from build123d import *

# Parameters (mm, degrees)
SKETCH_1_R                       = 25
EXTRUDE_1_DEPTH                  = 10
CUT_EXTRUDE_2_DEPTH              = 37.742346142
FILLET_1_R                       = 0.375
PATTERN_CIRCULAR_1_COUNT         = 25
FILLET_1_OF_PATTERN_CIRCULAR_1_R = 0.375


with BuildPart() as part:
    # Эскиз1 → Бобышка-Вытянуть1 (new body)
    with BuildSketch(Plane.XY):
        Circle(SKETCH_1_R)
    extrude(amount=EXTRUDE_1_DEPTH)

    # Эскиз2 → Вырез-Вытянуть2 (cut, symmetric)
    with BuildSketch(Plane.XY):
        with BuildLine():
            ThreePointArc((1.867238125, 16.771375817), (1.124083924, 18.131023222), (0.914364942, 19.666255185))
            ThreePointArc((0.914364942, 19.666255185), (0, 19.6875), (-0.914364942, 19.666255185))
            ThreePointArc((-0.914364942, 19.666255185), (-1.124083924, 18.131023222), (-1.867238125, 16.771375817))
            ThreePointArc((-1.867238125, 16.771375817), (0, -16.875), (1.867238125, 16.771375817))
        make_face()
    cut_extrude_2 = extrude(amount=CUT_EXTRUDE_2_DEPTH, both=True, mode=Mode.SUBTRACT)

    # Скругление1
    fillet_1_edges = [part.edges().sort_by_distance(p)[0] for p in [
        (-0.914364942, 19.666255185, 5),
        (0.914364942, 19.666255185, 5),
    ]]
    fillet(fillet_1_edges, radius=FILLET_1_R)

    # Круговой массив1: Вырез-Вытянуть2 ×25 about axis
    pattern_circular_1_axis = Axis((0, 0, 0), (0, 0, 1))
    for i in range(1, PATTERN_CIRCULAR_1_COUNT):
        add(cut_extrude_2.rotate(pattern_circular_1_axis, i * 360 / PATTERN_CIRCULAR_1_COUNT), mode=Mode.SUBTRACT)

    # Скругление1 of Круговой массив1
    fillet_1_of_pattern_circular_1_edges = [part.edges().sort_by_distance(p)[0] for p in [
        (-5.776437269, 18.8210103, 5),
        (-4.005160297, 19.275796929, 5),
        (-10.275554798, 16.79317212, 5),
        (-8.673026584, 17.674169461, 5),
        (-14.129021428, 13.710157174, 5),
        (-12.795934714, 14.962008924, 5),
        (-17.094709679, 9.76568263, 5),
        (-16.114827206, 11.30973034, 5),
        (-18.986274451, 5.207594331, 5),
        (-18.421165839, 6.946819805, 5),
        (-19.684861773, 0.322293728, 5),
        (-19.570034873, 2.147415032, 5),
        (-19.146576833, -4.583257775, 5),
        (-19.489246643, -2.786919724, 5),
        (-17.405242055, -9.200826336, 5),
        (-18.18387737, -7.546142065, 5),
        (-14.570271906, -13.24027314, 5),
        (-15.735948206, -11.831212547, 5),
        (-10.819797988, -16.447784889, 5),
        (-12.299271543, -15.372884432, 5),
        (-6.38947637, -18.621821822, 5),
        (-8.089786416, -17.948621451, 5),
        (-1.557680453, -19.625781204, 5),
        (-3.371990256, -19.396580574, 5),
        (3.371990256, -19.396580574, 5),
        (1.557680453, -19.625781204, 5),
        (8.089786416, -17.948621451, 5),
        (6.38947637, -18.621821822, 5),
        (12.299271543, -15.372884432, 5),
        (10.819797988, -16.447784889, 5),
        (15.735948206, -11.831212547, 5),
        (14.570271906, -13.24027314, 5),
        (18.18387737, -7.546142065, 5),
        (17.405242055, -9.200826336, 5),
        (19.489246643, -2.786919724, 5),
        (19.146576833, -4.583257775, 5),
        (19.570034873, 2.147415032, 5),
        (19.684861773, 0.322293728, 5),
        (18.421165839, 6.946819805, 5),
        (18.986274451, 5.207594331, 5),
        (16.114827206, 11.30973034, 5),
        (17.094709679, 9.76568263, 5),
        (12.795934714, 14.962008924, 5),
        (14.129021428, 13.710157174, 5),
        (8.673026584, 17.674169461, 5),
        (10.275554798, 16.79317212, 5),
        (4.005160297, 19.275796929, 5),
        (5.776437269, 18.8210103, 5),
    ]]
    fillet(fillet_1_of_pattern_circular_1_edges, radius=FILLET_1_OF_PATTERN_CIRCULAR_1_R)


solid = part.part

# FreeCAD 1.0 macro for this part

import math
import FreeCAD as App
import Part
import Sketcher

V = App.Vector


def edges_at(feature, points):
    """Names of the edges that pass closest to the given points."""
    edges = feature.Shape.Edges
    near = lambda p: min(range(len(edges)), key=lambda i: edges[i].distToShape(Part.Vertex(*p))[0])
    return sorted({f"Edge{near(p) + 1}" for p in points})

doc = App.newDocument("Part")
body = doc.addObject("PartDesign::Body", "Body")

sketch1 = body.newObject("Sketcher::SketchObject", "Sketch")
sketch1.AttachmentSupport = (doc.getObject("XY_Plane"), [""])
sketch1.MapMode = "FlatFace"
sketch1.addGeometry(Part.Circle(V(0, 0, 0), V(0, 0, 1), 25), False)
sketch1.addConstraint([
    Sketcher.Constraint("Coincident", 0, 3, -1, 1),
    Sketcher.Constraint("Diameter", 0, 50.0),
])
pad1 = body.newObject("PartDesign::Pad", "Pad")
pad1.Profile = sketch1
pad1.Length = 10

sketch2 = body.newObject("Sketcher::SketchObject", "Sketch001")
sketch2.AttachmentSupport = (doc.getObject("XY_Plane"), [""])
sketch2.MapMode = "FlatFace"
sketch2.addGeometry([
    Part.ArcOfCircle(Part.Circle(V(5.184971, 19.467697, 0), V(0, 0, 1), 4.275219), math.radians(177.338001), math.radians(219.100764)),
    Part.ArcOfCircle(Part.Circle(V(0, 0, 0), V(0, 0, 1), 19.6875), math.radians(87.338001), math.radians(92.661999)),
    Part.ArcOfCircle(Part.Circle(V(-5.184971, 19.467697, 0), V(0, 0, 1), 4.275219), math.radians(-39.100764), math.radians(2.661999)),
    Part.ArcOfCircle(Part.Circle(V(0, 0, 0), V(0, 0, 1), 16.875), math.radians(96.352853), math.radians(443.647147)),
], False)
sketch2.addConstraint([
    Sketcher.Constraint("Coincident", 0, 1, 1, 1),
    Sketcher.Constraint("Coincident", 1, 2, 2, 2),
    Sketcher.Constraint("Coincident", 2, 1, 3, 1),
    Sketcher.Constraint("Coincident", 3, 2, 0, 2),
    Sketcher.Constraint("Coincident", 1, 3, -1, 1),
    Sketcher.Constraint("Coincident", 3, 3, -1, 1),
    Sketcher.Constraint("Equal", 0, 2),
    Sketcher.Constraint("Symmetric", 0, 3, 2, 3, -2),
    Sketcher.Constraint("Radius", 3, 16.875),
    Sketcher.Constraint("Radius", 1, 19.6875),
    Sketcher.Constraint("Radius", 0, 4.275219),
    Sketcher.Constraint("DistanceX", -1, 1, 0, 3, 5.184971),
    Sketcher.Constraint("DistanceX", 2, 1, -1, 1, 1.867238),
])
pocket1 = body.newObject("PartDesign::Pocket", "Pocket")
pocket1.Profile = sketch2
pocket1.Length = 75.484692
pocket1.Midplane = True
doc.recompute()

fillet = body.newObject("PartDesign::Fillet", "Fillet")
fillet.Base = (pocket1, edges_at(pocket1, [(-0.914, 19.666, 5), (0.914, 19.666, 5)]))
fillet.Radius = 0.375
doc.recompute()

polarpattern = body.newObject("PartDesign::PolarPattern", "PolarPattern")
polarpattern.Originals = [pocket1]
polarpattern.Axis = (doc.getObject("Z_Axis"), [""])
polarpattern.Angle = 360
polarpattern.Occurrences = 25
body.Tip = polarpattern
doc.recompute()

fillet2 = body.newObject("PartDesign::Fillet", "Fillet001")
fillet2.Base = (polarpattern, edges_at(polarpattern, [
    (-5.776, 18.821, 5),
    (-4.005, 19.276, 5),
    (-10.276, 16.793, 5),
    (-8.673, 17.674, 5),
    (-14.129, 13.71, 5),
    (-12.796, 14.962, 5),
    (-17.095, 9.766, 5),
    (-16.115, 11.31, 5),
    (-18.986, 5.208, 5),
    (-18.421, 6.947, 5),
    (-19.685, 0.322, 5),
    (-19.57, 2.147, 5),
    (-19.147, -4.583, 5),
    (-19.489, -2.787, 5),
    (-17.405, -9.201, 5),
    (-18.184, -7.546, 5),
    (-14.57, -13.24, 5),
    (-15.736, -11.831, 5),
    (-10.82, -16.448, 5),
    (-12.299, -15.373, 5),
    (-6.389, -18.622, 5),
    (-8.09, -17.949, 5),
    (-1.558, -19.626, 5),
    (-3.372, -19.397, 5),
    (3.372, -19.397, 5),
    (1.558, -19.626, 5),
    (8.09, -17.949, 5),
    (6.389, -18.622, 5),
    (12.299, -15.373, 5),
    (10.82, -16.448, 5),
    (15.736, -11.831, 5),
    (14.57, -13.24, 5),
    (18.184, -7.546, 5),
    (17.405, -9.201, 5),
    (19.489, -2.787, 5),
    (19.147, -4.583, 5),
    (19.57, 2.147, 5),
    (19.685, 0.322, 5),
    (18.421, 6.947, 5),
    (18.986, 5.208, 5),
    (16.115, 11.31, 5),
    (17.095, 9.766, 5),
    (12.796, 14.962, 5),
    (14.129, 13.71, 5),
    (8.673, 17.674, 5),
    (10.276, 16.793, 5),
    (4.005, 19.276, 5),
    (5.776, 18.821, 5),
]))
fillet2.Radius = 0.375

doc.recompute()
